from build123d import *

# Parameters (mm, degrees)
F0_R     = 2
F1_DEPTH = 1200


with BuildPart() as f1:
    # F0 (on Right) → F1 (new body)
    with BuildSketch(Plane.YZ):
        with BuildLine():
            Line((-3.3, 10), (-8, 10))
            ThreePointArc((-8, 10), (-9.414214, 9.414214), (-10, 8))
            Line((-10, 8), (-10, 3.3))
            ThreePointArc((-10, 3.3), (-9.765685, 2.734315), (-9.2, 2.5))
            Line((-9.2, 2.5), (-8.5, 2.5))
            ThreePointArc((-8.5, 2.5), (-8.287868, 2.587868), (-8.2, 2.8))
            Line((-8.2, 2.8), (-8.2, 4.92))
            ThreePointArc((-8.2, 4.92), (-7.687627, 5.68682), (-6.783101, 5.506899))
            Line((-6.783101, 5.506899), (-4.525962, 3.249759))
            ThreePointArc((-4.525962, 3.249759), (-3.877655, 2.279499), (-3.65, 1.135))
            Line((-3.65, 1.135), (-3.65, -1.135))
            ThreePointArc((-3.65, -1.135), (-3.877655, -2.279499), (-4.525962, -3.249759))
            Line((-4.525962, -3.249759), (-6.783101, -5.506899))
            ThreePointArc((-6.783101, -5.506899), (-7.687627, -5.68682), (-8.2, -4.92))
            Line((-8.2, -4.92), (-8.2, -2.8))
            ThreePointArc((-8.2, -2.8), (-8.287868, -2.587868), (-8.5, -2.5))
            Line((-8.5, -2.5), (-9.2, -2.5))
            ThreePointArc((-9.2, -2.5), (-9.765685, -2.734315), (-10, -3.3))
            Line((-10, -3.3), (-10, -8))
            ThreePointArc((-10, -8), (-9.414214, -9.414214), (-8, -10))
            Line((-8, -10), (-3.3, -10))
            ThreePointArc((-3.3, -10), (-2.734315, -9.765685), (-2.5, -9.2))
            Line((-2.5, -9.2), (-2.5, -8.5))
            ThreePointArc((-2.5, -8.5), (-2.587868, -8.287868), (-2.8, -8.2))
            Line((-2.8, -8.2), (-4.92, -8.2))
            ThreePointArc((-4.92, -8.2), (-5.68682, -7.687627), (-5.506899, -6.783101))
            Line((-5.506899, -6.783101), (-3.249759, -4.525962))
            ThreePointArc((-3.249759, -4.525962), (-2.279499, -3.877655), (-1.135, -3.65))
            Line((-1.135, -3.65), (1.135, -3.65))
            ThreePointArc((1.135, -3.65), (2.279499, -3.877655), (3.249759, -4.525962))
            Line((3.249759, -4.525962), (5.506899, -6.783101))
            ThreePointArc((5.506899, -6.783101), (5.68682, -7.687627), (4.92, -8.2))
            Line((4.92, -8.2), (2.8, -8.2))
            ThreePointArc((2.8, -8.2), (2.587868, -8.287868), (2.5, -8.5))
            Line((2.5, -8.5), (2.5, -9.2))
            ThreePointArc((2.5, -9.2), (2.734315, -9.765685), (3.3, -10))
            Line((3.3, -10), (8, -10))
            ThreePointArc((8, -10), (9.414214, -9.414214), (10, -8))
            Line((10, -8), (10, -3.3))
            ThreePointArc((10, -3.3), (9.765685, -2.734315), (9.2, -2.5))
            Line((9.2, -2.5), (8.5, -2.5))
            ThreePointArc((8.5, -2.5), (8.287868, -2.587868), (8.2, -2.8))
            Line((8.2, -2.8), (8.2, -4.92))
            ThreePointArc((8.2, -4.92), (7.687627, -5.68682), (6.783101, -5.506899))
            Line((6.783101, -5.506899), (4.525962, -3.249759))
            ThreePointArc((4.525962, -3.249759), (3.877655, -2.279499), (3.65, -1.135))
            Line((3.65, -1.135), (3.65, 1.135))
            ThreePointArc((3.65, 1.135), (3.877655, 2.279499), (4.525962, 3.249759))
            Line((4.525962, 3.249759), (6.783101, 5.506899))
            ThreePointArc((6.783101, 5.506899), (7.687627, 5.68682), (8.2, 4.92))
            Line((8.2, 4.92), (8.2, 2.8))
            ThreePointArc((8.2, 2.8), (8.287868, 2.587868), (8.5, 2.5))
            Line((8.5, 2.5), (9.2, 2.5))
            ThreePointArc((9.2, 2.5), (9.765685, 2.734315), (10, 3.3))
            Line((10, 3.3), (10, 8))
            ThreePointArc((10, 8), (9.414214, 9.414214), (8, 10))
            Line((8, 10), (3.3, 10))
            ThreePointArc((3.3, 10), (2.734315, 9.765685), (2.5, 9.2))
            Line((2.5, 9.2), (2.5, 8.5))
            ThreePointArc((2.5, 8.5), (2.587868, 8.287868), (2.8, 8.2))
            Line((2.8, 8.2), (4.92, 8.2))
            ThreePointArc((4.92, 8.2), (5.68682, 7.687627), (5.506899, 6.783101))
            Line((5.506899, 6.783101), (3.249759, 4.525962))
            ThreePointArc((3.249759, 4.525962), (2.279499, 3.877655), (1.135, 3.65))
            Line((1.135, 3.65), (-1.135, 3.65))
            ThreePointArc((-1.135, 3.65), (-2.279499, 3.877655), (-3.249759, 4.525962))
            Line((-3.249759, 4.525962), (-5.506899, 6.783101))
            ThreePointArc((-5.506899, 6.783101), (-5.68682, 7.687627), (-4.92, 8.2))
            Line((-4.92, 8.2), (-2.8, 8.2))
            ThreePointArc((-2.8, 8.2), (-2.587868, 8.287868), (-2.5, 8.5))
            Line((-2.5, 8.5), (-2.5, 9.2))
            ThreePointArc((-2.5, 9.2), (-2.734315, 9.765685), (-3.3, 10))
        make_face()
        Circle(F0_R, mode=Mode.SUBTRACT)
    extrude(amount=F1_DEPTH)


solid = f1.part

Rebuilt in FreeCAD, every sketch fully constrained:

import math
import FreeCAD as App
import Part
import Sketcher

doc = App.newDocument("Part")
body = doc.addObject("PartDesign::Body", "Body")

# Sketch on YZ plane
sketch1 = body.newObject("Sketcher::SketchObject", "Sketch")
sketch1.AttachmentSupport = (doc.getObject("YZ_Plane"), [""])
sketch1.MapMode = "FlatFace"
sketch1.addGeometry(Part.LineSegment(App.Vector(-3.3, 10, 0), App.Vector(-8, 10, 0)), False)
sketch1.addGeometry(Part.ArcOfCircle(Part.Circle(App.Vector(-8, 8, 0), App.Vector(0, 0, 1), 2), math.radians(90), math.radians(180)), False)
sketch1.addGeometry(Part.LineSegment(App.Vector(-10, 8, 0), App.Vector(-10, 3.3, 0)), False)
sketch1.addGeometry(Part.ArcOfCircle(Part.Circle(App.Vector(-9.2, 3.3, 0), App.Vector(0, 0, 1), 0.8), math.radians(-180), math.radians(-90)), False)
sketch1.addGeometry(Part.LineSegment(App.Vector(-9.2, 2.5, 0), App.Vector(-8.5, 2.5, 0)), False)
sketch1.addGeometry(Part.ArcOfCircle(Part.Circle(App.Vector(-8.5, 2.8, 0), App.Vector(0, 0, 1), 0.3), math.radians(-90), math.radians(0)), False)
sketch1.addGeometry(Part.LineSegment(App.Vector(-8.2, 2.8, 0), App.Vector(-8.2, 4.92, 0)), False)
sketch1.addGeometry(Part.ArcOfCircle(Part.Circle(App.Vector(-7.37, 4.92, 0), App.Vector(0, 0, 1), 0.83), math.radians(45), math.radians(180)), False)
sketch1.addGeometry(Part.LineSegment(App.Vector(-6.78, 5.51, 0), App.Vector(-4.53, 3.25, 0)), False)
sketch1.addGeometry(Part.ArcOfCircle(Part.Circle(App.Vector(-6.64, 1.13, 0), App.Vector(0, 0, 1), 2.99), math.radians(0), math.radians(45)), False)
sketch1.addGeometry(Part.LineSegment(App.Vector(-3.65, 1.14, 0), App.Vector(-3.65, -1.14, 0)), False)
sketch1.addGeometry(Part.ArcOfCircle(Part.Circle(App.Vector(-6.64, -1.13, 0), App.Vector(0, 0, 1), 2.99), math.radians(-45), math.radians(0)), False)
sketch1.addGeometry(Part.LineSegment(App.Vector(-4.53, -3.25, 0), App.Vector(-6.78, -5.51, 0)), False)
sketch1.addGeometry(Part.ArcOfCircle(Part.Circle(App.Vector(-7.37, -4.92, 0), App.Vector(0, 0, 1), 0.83), math.radians(-180), math.radians(-45)), False)
sketch1.addGeometry(Part.LineSegment(App.Vector(-8.2, -4.92, 0), App.Vector(-8.2, -2.8, 0)), False)
sketch1.addGeometry(Part.ArcOfCircle(Part.Circle(App.Vector(-8.5, -2.8, 0), App.Vector(0, 0, 1), 0.3), math.radians(0), math.radians(90)), False)
sketch1.addGeometry(Part.LineSegment(App.Vector(-8.5, -2.5, 0), App.Vector(-9.2, -2.5, 0)), False)
sketch1.addGeometry(Part.ArcOfCircle(Part.Circle(App.Vector(-9.2, -3.3, 0), App.Vector(0, 0, 1), 0.8), math.radians(90), math.radians(180)), False)
sketch1.addGeometry(Part.LineSegment(App.Vector(-10, -3.3, 0), App.Vector(-10, -8, 0)), False)
sketch1.addGeometry(Part.ArcOfCircle(Part.Circle(App.Vector(-8, -8, 0), App.Vector(0, 0, 1), 2), math.radians(180), math.radians(270)), False)
sketch1.addGeometry(Part.LineSegment(App.Vector(-8, -10, 0), App.Vector(-3.3, -10, 0)), False)
sketch1.addGeometry(Part.ArcOfCircle(Part.Circle(App.Vector(-3.3, -9.2, 0), App.Vector(0, 0, 1), 0.8), math.radians(-90), math.radians(0)), False)
sketch1.addGeometry(Part.LineSegment(App.Vector(-2.5, -9.2, 0), App.Vector(-2.5, -8.5, 0)), False)
sketch1.addGeometry(Part.ArcOfCircle(Part.Circle(App.Vector(-2.8, -8.5, 0), App.Vector(0, 0, 1), 0.3), math.radians(0), math.radians(90)), False)
sketch1.addGeometry(Part.LineSegment(App.Vector(-2.8, -8.2, 0), App.Vector(-4.92, -8.2, 0)), False)
sketch1.addGeometry(Part.ArcOfCircle(Part.Circle(App.Vector(-4.92, -7.37, 0), App.Vector(0, 0, 1), 0.83), math.radians(135), math.radians(270)), False)
sketch1.addGeometry(Part.LineSegment(App.Vector(-5.51, -6.78, 0), App.Vector(-3.25, -4.53, 0)), False)
sketch1.addGeometry(Part.ArcOfCircle(Part.Circle(App.Vector(-1.13, -6.64, 0), App.Vector(0, 0, 1), 2.99), math.radians(90), math.radians(135)), False)
sketch1.addGeometry(Part.LineSegment(App.Vector(-1.14, -3.65, 0), App.Vector(1.14, -3.65, 0)), False)
sketch1.addGeometry(Part.ArcOfCircle(Part.Circle(App.Vector(1.13, -6.64, 0), App.Vector(0, 0, 1), 2.99), math.radians(45), math.radians(90)), False)
sketch1.addGeometry(Part.LineSegment(App.Vector(3.25, -4.53, 0), App.Vector(5.51, -6.78, 0)), False)
sketch1.addGeometry(Part.ArcOfCircle(Part.Circle(App.Vector(4.92, -7.37, 0), App.Vector(0, 0, 1), 0.83), math.radians(-90), math.radians(45)), False)
sketch1.addGeometry(Part.LineSegment(App.Vector(4.92, -8.2, 0), App.Vector(2.8, -8.2, 0)), False)
sketch1.addGeometry(Part.ArcOfCircle(Part.Circle(App.Vector(2.8, -8.5, 0), App.Vector(0, 0, 1), 0.3), math.radians(90), math.radians(180)), False)
sketch1.addGeometry(Part.LineSegment(App.Vector(2.5, -8.5, 0), App.Vector(2.5, -9.2, 0)), False)
sketch1.addGeometry(Part.ArcOfCircle(Part.Circle(App.Vector(3.3, -9.2, 0), App.Vector(0, 0, 1), 0.8), math.radians(-180), math.radians(-90)), False)
sketch1.addGeometry(Part.LineSegment(App.Vector(3.3, -10, 0), App.Vector(8, -10, 0)), False)
sketch1.addGeometry(Part.ArcOfCircle(Part.Circle(App.Vector(8, -8, 0), App.Vector(0, 0, 1), 2), math.radians(-90), math.radians(0)), False)
sketch1.addGeometry(Part.LineSegment(App.Vector(10, -8, 0), App.Vector(10, -3.3, 0)), False)
sketch1.addGeometry(Part.ArcOfCircle(Part.Circle(App.Vector(9.2, -3.3, 0), App.Vector(0, 0, 1), 0.8), math.radians(0), math.radians(90)), False)
sketch1.addGeometry(Part.LineSegment(App.Vector(9.2, -2.5, 0), App.Vector(8.5, -2.5, 0)), False)
sketch1.addGeometry(Part.ArcOfCircle(Part.Circle(App.Vector(8.5, -2.8, 0), App.Vector(0, 0, 1), 0.3), math.radians(90), math.radians(180)), False)
sketch1.addGeometry(Part.LineSegment(App.Vector(8.2, -2.8, 0), App.Vector(8.2, -4.92, 0)), False)
sketch1.addGeometry(Part.ArcOfCircle(Part.Circle(App.Vector(7.37, -4.92, 0), App.Vector(0, 0, 1), 0.83), math.radians(-135), math.radians(0)), False)
sketch1.addGeometry(Part.LineSegment(App.Vector(6.78, -5.51, 0), App.Vector(4.53, -3.25, 0)), False)
sketch1.addGeometry(Part.ArcOfCircle(Part.Circle(App.Vector(6.64, -1.13, 0), App.Vector(0, 0, 1), 2.99), math.radians(-180), math.radians(-135)), False)
sketch1.addGeometry(Part.LineSegment(App.Vector(3.65, -1.14, 0), App.Vector(3.65, 1.14, 0)), False)
sketch1.addGeometry(Part.ArcOfCircle(Part.Circle(App.Vector(6.64, 1.13, 0), App.Vector(0, 0, 1), 2.99), math.radians(135), math.radians(180)), False)
sketch1.addGeometry(Part.LineSegment(App.Vector(4.53, 3.25, 0), App.Vector(6.78, 5.51, 0)), False)
sketch1.addGeometry(Part.ArcOfCircle(Part.Circle(App.Vector(7.37, 4.92, 0), App.Vector(0, 0, 1), 0.83), math.radians(0), math.radians(135)), False)
sketch1.addGeometry(Part.LineSegment(App.Vector(8.2, 4.92, 0), App.Vector(8.2, 2.8, 0)), False)
sketch1.addGeometry(Part.ArcOfCircle(Part.Circle(App.Vector(8.5, 2.8, 0), App.Vector(0, 0, 1), 0.3), math.radians(-180), math.radians(-90)), False)
sketch1.addGeometry(Part.LineSegment(App.Vector(8.5, 2.5, 0), App.Vector(9.2, 2.5, 0)), False)
sketch1.addGeometry(Part.ArcOfCircle(Part.Circle(App.Vector(9.2, 3.3, 0), App.Vector(0, 0, 1), 0.8), math.radians(-90), math.radians(0)), False)
sketch1.addGeometry(Part.LineSegment(App.Vector(10, 3.3, 0), App.Vector(10, 8, 0)), False)
sketch1.addGeometry(Part.ArcOfCircle(Part.Circle(App.Vector(8, 8, 0), App.Vector(0, 0, 1), 2), math.radians(0), math.radians(90)), False)
sketch1.addGeometry(Part.LineSegment(App.Vector(8, 10, 0), App.Vector(3.3, 10, 0)), False)
sketch1.addGeometry(Part.ArcOfCircle(Part.Circle(App.Vector(3.3, 9.2, 0), App.Vector(0, 0, 1), 0.8), math.radians(90), math.radians(180)), False)
sketch1.addGeometry(Part.LineSegment(App.Vector(2.5, 9.2, 0), App.Vector(2.5, 8.5, 0)), False)
sketch1.addGeometry(Part.ArcOfCircle(Part.Circle(App.Vector(2.8, 8.5, 0), App.Vector(0, 0, 1), 0.3), math.radians(-180), math.radians(-90)), False)
sketch1.addGeometry(Part.LineSegment(App.Vector(2.8, 8.2, 0), App.Vector(4.92, 8.2, 0)), False)
sketch1.addGeometry(Part.ArcOfCircle(Part.Circle(App.Vector(4.92, 7.37, 0), App.Vector(0, 0, 1), 0.83), math.radians(-45), math.radians(90)), False)
sketch1.addGeometry(Part.LineSegment(App.Vector(5.51, 6.78, 0), App.Vector(3.25, 4.53, 0)), False)
sketch1.addGeometry(Part.ArcOfCircle(Part.Circle(App.Vector(1.13, 6.64, 0), App.Vector(0, 0, 1), 2.99), math.radians(-90), math.radians(-45)), False)
sketch1.addGeometry(Part.LineSegment(App.Vector(1.14, 3.65, 0), App.Vector(-1.14, 3.65, 0)), False)
sketch1.addGeometry(Part.ArcOfCircle(Part.Circle(App.Vector(-1.13, 6.64, 0), App.Vector(0, 0, 1), 2.99), math.radians(-135), math.radians(-90)), False)
sketch1.addGeometry(Part.LineSegment(App.Vector(-3.25, 4.53, 0), App.Vector(-5.51, 6.78, 0)), False)
sketch1.addGeometry(Part.ArcOfCircle(Part.Circle(App.Vector(-4.92, 7.37, 0), App.Vector(0, 0, 1), 0.83), math.radians(90), math.radians(225)), False)
sketch1.addGeometry(Part.LineSegment(App.Vector(-4.92, 8.2, 0), App.Vector(-2.8, 8.2, 0)), False)
sketch1.addGeometry(Part.ArcOfCircle(Part.Circle(App.Vector(-2.8, 8.5, 0), App.Vector(0, 0, 1), 0.3), math.radians(-90), math.radians(0)), False)
sketch1.addGeometry(Part.LineSegment(App.Vector(-2.5, 8.5, 0), App.Vector(-2.5, 9.2, 0)), False)
sketch1.addGeometry(Part.ArcOfCircle(Part.Circle(App.Vector(-3.3, 9.2, 0), App.Vector(0, 0, 1), 0.8), math.radians(0), math.radians(90)), False)
sketch1.addGeometry(Part.Circle(App.Vector(0, 0, 0), App.Vector(0, 0, 1), 2), False)
sketch1.addConstraint(Sketcher.Constraint("Tangent", 0, 2, 1, 1))
sketch1.addConstraint(Sketcher.Constraint("Tangent", 1, 2, 2, 1))
sketch1.addConstraint(Sketcher.Constraint("Tangent", 2, 2, 3, 1))
sketch1.addConstraint(Sketcher.Constraint("Tangent", 3, 2, 4, 1))
sketch1.addConstraint(Sketcher.Constraint("Tangent", 4, 2, 5, 1))
sketch1.addConstraint(Sketcher.Constraint("Tangent", 5, 2, 6, 1))
sketch1.addConstraint(Sketcher.Constraint("Tangent", 6, 2, 7, 2))
sketch1.addConstraint(Sketcher.Constraint("Tangent", 7, 1, 8, 1))
sketch1.addConstraint(Sketcher.Constraint("Tangent", 8, 2, 9, 2))
sketch1.addConstraint(Sketcher.Constraint("Tangent", 9, 1, 10, 1))
sketch1.addConstraint(Sketcher.Constraint("Tangent", 10, 2, 11, 2))
sketch1.addConstraint(Sketcher.Constraint("Tangent", 11, 1, 12, 1))
sketch1.addConstraint(Sketcher.Constraint("Tangent", 12, 2, 13, 2))
sketch1.addConstraint(Sketcher.Constraint("Tangent", 13, 1, 14, 1))
sketch1.addConstraint(Sketcher.Constraint("Tangent", 14, 2, 15, 1))
sketch1.addConstraint(Sketcher.Constraint("Tangent", 15, 2, 16, 1))
sketch1.addConstraint(Sketcher.Constraint("Tangent", 16, 2, 17, 1))
sketch1.addConstraint(Sketcher.Constraint("Tangent", 17, 2, 18, 1))
sketch1.addConstraint(Sketcher.Constraint("Tangent", 18, 2, 19, 1))
sketch1.addConstraint(Sketcher.Constraint("Tangent", 19, 2, 20, 1))
sketch1.addConstraint(Sketcher.Constraint("Tangent", 20, 2, 21, 1))
sketch1.addConstraint(Sketcher.Constraint("Tangent", 21, 2, 22, 1))
sketch1.addConstraint(Sketcher.Constraint("Tangent", 22, 2, 23, 1))
sketch1.addConstraint(Sketcher.Constraint("Tangent", 23, 2, 24, 1))
sketch1.addConstraint(Sketcher.Constraint("Tangent", 24, 2, 25, 2))
sketch1.addConstraint(Sketcher.Constraint("Tangent", 25, 1, 26, 1))
sketch1.addConstraint(Sketcher.Constraint("Tangent", 26, 2, 27, 2))
sketch1.addConstraint(Sketcher.Constraint("Tangent", 27, 1, 28, 1))
sketch1.addConstraint(Sketcher.Constraint("Tangent", 28, 2, 29, 2))
sketch1.addConstraint(Sketcher.Constraint("Tangent", 29, 1, 30, 1))
sketch1.addConstraint(Sketcher.Constraint("Tangent", 30, 2, 31, 2))
sketch1.addConstraint(Sketcher.Constraint("Tangent", 31, 1, 32, 1))
sketch1.addConstraint(Sketcher.Constraint("Tangent", 32, 2, 33, 1))
sketch1.addConstraint(Sketcher.Constraint("Tangent", 33, 2, 34, 1))
sketch1.addConstraint(Sketcher.Constraint("Tangent", 34, 2, 35, 1))
sketch1.addConstraint(Sketcher.Constraint("Tangent", 35, 2, 36, 1))
sketch1.addConstraint(Sketcher.Constraint("Tangent", 36, 2, 37, 1))
sketch1.addConstraint(Sketcher.Constraint("Tangent", 37, 2, 38, 1))
sketch1.addConstraint(Sketcher.Constraint("Tangent", 38, 2, 39, 1))
sketch1.addConstraint(Sketcher.Constraint("Tangent", 39, 2, 40, 1))
sketch1.addConstraint(Sketcher.Constraint("Tangent", 40, 2, 41, 1))
sketch1.addConstraint(Sketcher.Constraint("Tangent", 41, 2, 42, 1))
sketch1.addConstraint(Sketcher.Constraint("Tangent", 42, 2, 43, 2))
sketch1.addConstraint(Sketcher.Constraint("Tangent", 43, 1, 44, 1))
sketch1.addConstraint(Sketcher.Constraint("Tangent", 44, 2, 45, 2))
sketch1.addConstraint(Sketcher.Constraint("Tangent", 45, 1, 46, 1))
sketch1.addConstraint(Sketcher.Constraint("Tangent", 46, 2, 47, 2))
sketch1.addConstraint(Sketcher.Constraint("Tangent", 47, 1, 48, 1))
sketch1.addConstraint(Sketcher.Constraint("Tangent", 48, 2, 49, 2))
sketch1.addConstraint(Sketcher.Constraint("Tangent", 49, 1, 50, 1))
sketch1.addConstraint(Sketcher.Constraint("Tangent", 50, 2, 51, 1))
sketch1.addConstraint(Sketcher.Constraint("Tangent", 51, 2, 52, 1))
sketch1.addConstraint(Sketcher.Constraint("Tangent", 52, 2, 53, 1))
sketch1.addConstraint(Sketcher.Constraint("Tangent", 53, 2, 54, 1))
sketch1.addConstraint(Sketcher.Constraint("Tangent", 54, 2, 55, 1))
sketch1.addConstraint(Sketcher.Constraint("Tangent", 55, 2, 56, 1))
sketch1.addConstraint(Sketcher.Constraint("Tangent", 56, 2, 57, 1))
sketch1.addConstraint(Sketcher.Constraint("Tangent", 57, 2, 58, 1))
sketch1.addConstraint(Sketcher.Constraint("Tangent", 58, 2, 59, 1))
sketch1.addConstraint(Sketcher.Constraint("Tangent", 59, 2, 60, 1))
sketch1.addConstraint(Sketcher.Constraint("Tangent", 60, 2, 61, 2))
sketch1.addConstraint(Sketcher.Constraint("Tangent", 61, 1, 62, 1))
sketch1.addConstraint(Sketcher.Constraint("Tangent", 62, 2, 63, 2))
sketch1.addConstraint(Sketcher.Constraint("Tangent", 63, 1, 64, 1))
sketch1.addConstraint(Sketcher.Constraint("Tangent", 64, 2, 65, 2))
sketch1.addConstraint(Sketcher.Constraint("Tangent", 65, 1, 66, 1))
sketch1.addConstraint(Sketcher.Constraint("Tangent", 66, 2, 67, 2))
sketch1.addConstraint(Sketcher.Constraint("Tangent", 67, 1, 68, 1))
sketch1.addConstraint(Sketcher.Constraint("Tangent", 68, 2, 69, 1))
sketch1.addConstraint(Sketcher.Constraint("Tangent", 69, 2, 70, 1))
sketch1.addConstraint(Sketcher.Constraint("Tangent", 70, 2, 71, 1))
sketch1.addConstraint(Sketcher.Constraint("Tangent", 71, 2, 0, 1))
sketch1.addConstraint(Sketcher.Constraint("Horizontal", 0))
sketch1.addConstraint(Sketcher.Constraint("Vertical", 2))
sketch1.addConstraint(Sketcher.Constraint("Horizontal", 4))
sketch1.addConstraint(Sketcher.Constraint("Vertical", 6))
sketch1.addConstraint(Sketcher.Constraint("Vertical", 10))
sketch1.addConstraint(Sketcher.Constraint("Vertical", 14))
sketch1.addConstraint(Sketcher.Constraint("Horizontal", 16))
sketch1.addConstraint(Sketcher.Constraint("Vertical", 18))
sketch1.addConstraint(Sketcher.Constraint("Horizontal", 20))
sketch1.addConstraint(Sketcher.Constraint("Vertical", 22))
sketch1.addConstraint(Sketcher.Constraint("Horizontal", 24))
sketch1.addConstraint(Sketcher.Constraint("Horizontal", 28))
sketch1.addConstraint(Sketcher.Constraint("Horizontal", 32))
sketch1.addConstraint(Sketcher.Constraint("Vertical", 34))
sketch1.addConstraint(Sketcher.Constraint("Horizontal", 36))
sketch1.addConstraint(Sketcher.Constraint("Vertical", 38))
sketch1.addConstraint(Sketcher.Constraint("Horizontal", 40))
sketch1.addConstraint(Sketcher.Constraint("Vertical", 42))
sketch1.addConstraint(Sketcher.Constraint("Vertical", 46))
sketch1.addConstraint(Sketcher.Constraint("Vertical", 50))
sketch1.addConstraint(Sketcher.Constraint("Horizontal", 52))
sketch1.addConstraint(Sketcher.Constraint("Vertical", 54))
sketch1.addConstraint(Sketcher.Constraint("Horizontal", 56))
sketch1.addConstraint(Sketcher.Constraint("Vertical", 58))
sketch1.addConstraint(Sketcher.Constraint("Horizontal", 60))
sketch1.addConstraint(Sketcher.Constraint("Horizontal", 64))
sketch1.addConstraint(Sketcher.Constraint("Horizontal", 68))
sketch1.addConstraint(Sketcher.Constraint("Vertical", 70))
sketch1.addConstraint(Sketcher.Constraint("Coincident", 72, 3, -1, 1))
sketch1.addConstraint(Sketcher.Constraint("Equal", 9, 11))
sketch1.addConstraint(Sketcher.Constraint("Equal", 7, 13))
sketch1.addConstraint(Sketcher.Constraint("Equal", 5, 15))
sketch1.addConstraint(Sketcher.Constraint("Equal", 3, 17))
sketch1.addConstraint(Sketcher.Constraint("Equal", 1, 19))
sketch1.addConstraint(Sketcher.Constraint("Equal", 17, 21))
sketch1.addConstraint(Sketcher.Constraint("Equal", 15, 23))
sketch1.addConstraint(Sketcher.Constraint("Equal", 13, 25))
sketch1.addConstraint(Sketcher.Constraint("Equal", 11, 27))
sketch1.addConstraint(Sketcher.Constraint("Equal", 27, 29))
sketch1.addConstraint(Sketcher.Constraint("Equal", 25, 31))
sketch1.addConstraint(Sketcher.Constraint("Equal", 23, 33))
sketch1.addConstraint(Sketcher.Constraint("Equal", 21, 35))
sketch1.addConstraint(Sketcher.Constraint("Equal", 19, 37))
sketch1.addConstraint(Sketcher.Constraint("Equal", 35, 39))
sketch1.addConstraint(Sketcher.Constraint("Equal", 33, 41))
sketch1.addConstraint(Sketcher.Constraint("Equal", 31, 43))
sketch1.addConstraint(Sketcher.Constraint("Equal", 29, 45))
sketch1.addConstraint(Sketcher.Constraint("Equal", 45, 47))
sketch1.addConstraint(Sketcher.Constraint("Equal", 43, 49))
sketch1.addConstraint(Sketcher.Constraint("Equal", 41, 51))
sketch1.addConstraint(Sketcher.Constraint("Equal", 39, 53))
sketch1.addConstraint(Sketcher.Constraint("Equal", 37, 55))
sketch1.addConstraint(Sketcher.Constraint("Equal", 53, 57))
sketch1.addConstraint(Sketcher.Constraint("Equal", 51, 59))
sketch1.addConstraint(Sketcher.Constraint("Equal", 49, 61))
sketch1.addConstraint(Sketcher.Constraint("Equal", 47, 63))
sketch1.addConstraint(Sketcher.Constraint("Equal", 63, 65))
sketch1.addConstraint(Sketcher.Constraint("Equal", 61, 67))
sketch1.addConstraint(Sketcher.Constraint("Equal", 59, 69))
sketch1.addConstraint(Sketcher.Constraint("Equal", 57, 71))
sketch1.addConstraint(Sketcher.Constraint("Equal", 55, 72))
sketch1.addConstraint(Sketcher.Constraint("Symmetric", 1, 3, 37, 3, -1, 1))
sketch1.addConstraint(Sketcher.Constraint("Symmetric", 5, 3, 41, 3, -1, 1))
sketch1.addConstraint(Sketcher.Constraint("Symmetric", 9, 3, 45, 3, -1, 1))
sketch1.addConstraint(Sketcher.Constraint("Symmetric", 13, 3, 49, 3, -1, 1))
sketch1.addConstraint(Sketcher.Constraint("Symmetric", 17, 3, 53, 3, -1, 1))
sketch1.addConstraint(Sketcher.Constraint("Symmetric", 21, 3, 57, 3, -1, 1))
sketch1.addConstraint(Sketcher.Constraint("Symmetric", 25, 3, 61, 3, -1, 1))
sketch1.addConstraint(Sketcher.Constraint("Symmetric", 27, 3, 63, 3, -1, 1))
sketch1.addConstraint(Sketcher.Constraint("Symmetric", 31, 3, 67, 3, -1, 1))
sketch1.addConstraint(Sketcher.Constraint("Symmetric", 25, 3, 31, 3, -2))
sketch1.addConstraint(Sketcher.Constraint("Symmetric", 21, 3, 35, 3, -2))
sketch1.addConstraint(Sketcher.Constraint("Symmetric", 17, 3, 39, 3, -2))
sketch1.addConstraint(Sketcher.Constraint("Symmetric", 13, 3, 43, 3, -2))
sketch1.addConstraint(Sketcher.Constraint("Symmetric", 8, 2, 47, 1, -2))
sketch1.addConstraint(Sketcher.Constraint("Perpendicular", 8, 12))
sketch1.addConstraint(Sketcher.Constraint("Parallel", 12, 26))
sketch1.addConstraint(Sketcher.Constraint("Perpendicular", 26, 30))
sketch1.addConstraint(Sketcher.Constraint("Perpendicular", 44, 48))
sketch1.addConstraint(Sketcher.Constraint("Perpendicular", 62, 66))
sketch1.addConstraint(Sketcher.Constraint("Vertical", 23, 3, 69, 3))
sketch1.addConstraint(Sketcher.Constraint("Equal", 56, 2))
sketch1.addConstraint(Sketcher.Constraint("Equal", 68, 6))
sketch1.addConstraint(Sketcher.Constraint("Equal", 64, 10))
sketch1.addConstraint(Sketcher.Constraint("Equal", 52, 22))
sketch1.addConstraint(Sketcher.Constraint("Equal", 12, 26))
sketch1.addConstraint(Sketcher.Constraint("Diameter", 72, 4.0))
sketch1.addConstraint(Sketcher.Constraint("Radius", 3, 0.800001))
sketch1.addConstraint(Sketcher.Constraint("Radius", 5, 0.3))
sketch1.addConstraint(Sketcher.Constraint("Radius", 7, 0.83))
sketch1.addConstraint(Sketcher.Constraint("DistanceX", 0, 2, 0, 1, 4.7))
sketch1.addConstraint(Sketcher.Constraint("DistanceX", 4, 1, 4, 2, 0.7))
sketch1.addConstraint(Sketcher.Constraint("DistanceX", 1, 3, -1, 1, 8.000001))
sketch1.addConstraint(Sketcher.Constraint("DistanceX", 24, 2, 24, 1, 2.12))
sketch1.addConstraint(Sketcher.Constraint("DistanceX", 28, 1, 28, 2, 2.27))
sketch1.addConstraint(Sketcher.Constraint("DistanceX", 9, 1, -1, 1, 3.65))
pad1 = body.newObject("PartDesign::Pad", "Pad")
pad1.Profile = sketch1
pad1.Length = 1200

doc.recompute()
